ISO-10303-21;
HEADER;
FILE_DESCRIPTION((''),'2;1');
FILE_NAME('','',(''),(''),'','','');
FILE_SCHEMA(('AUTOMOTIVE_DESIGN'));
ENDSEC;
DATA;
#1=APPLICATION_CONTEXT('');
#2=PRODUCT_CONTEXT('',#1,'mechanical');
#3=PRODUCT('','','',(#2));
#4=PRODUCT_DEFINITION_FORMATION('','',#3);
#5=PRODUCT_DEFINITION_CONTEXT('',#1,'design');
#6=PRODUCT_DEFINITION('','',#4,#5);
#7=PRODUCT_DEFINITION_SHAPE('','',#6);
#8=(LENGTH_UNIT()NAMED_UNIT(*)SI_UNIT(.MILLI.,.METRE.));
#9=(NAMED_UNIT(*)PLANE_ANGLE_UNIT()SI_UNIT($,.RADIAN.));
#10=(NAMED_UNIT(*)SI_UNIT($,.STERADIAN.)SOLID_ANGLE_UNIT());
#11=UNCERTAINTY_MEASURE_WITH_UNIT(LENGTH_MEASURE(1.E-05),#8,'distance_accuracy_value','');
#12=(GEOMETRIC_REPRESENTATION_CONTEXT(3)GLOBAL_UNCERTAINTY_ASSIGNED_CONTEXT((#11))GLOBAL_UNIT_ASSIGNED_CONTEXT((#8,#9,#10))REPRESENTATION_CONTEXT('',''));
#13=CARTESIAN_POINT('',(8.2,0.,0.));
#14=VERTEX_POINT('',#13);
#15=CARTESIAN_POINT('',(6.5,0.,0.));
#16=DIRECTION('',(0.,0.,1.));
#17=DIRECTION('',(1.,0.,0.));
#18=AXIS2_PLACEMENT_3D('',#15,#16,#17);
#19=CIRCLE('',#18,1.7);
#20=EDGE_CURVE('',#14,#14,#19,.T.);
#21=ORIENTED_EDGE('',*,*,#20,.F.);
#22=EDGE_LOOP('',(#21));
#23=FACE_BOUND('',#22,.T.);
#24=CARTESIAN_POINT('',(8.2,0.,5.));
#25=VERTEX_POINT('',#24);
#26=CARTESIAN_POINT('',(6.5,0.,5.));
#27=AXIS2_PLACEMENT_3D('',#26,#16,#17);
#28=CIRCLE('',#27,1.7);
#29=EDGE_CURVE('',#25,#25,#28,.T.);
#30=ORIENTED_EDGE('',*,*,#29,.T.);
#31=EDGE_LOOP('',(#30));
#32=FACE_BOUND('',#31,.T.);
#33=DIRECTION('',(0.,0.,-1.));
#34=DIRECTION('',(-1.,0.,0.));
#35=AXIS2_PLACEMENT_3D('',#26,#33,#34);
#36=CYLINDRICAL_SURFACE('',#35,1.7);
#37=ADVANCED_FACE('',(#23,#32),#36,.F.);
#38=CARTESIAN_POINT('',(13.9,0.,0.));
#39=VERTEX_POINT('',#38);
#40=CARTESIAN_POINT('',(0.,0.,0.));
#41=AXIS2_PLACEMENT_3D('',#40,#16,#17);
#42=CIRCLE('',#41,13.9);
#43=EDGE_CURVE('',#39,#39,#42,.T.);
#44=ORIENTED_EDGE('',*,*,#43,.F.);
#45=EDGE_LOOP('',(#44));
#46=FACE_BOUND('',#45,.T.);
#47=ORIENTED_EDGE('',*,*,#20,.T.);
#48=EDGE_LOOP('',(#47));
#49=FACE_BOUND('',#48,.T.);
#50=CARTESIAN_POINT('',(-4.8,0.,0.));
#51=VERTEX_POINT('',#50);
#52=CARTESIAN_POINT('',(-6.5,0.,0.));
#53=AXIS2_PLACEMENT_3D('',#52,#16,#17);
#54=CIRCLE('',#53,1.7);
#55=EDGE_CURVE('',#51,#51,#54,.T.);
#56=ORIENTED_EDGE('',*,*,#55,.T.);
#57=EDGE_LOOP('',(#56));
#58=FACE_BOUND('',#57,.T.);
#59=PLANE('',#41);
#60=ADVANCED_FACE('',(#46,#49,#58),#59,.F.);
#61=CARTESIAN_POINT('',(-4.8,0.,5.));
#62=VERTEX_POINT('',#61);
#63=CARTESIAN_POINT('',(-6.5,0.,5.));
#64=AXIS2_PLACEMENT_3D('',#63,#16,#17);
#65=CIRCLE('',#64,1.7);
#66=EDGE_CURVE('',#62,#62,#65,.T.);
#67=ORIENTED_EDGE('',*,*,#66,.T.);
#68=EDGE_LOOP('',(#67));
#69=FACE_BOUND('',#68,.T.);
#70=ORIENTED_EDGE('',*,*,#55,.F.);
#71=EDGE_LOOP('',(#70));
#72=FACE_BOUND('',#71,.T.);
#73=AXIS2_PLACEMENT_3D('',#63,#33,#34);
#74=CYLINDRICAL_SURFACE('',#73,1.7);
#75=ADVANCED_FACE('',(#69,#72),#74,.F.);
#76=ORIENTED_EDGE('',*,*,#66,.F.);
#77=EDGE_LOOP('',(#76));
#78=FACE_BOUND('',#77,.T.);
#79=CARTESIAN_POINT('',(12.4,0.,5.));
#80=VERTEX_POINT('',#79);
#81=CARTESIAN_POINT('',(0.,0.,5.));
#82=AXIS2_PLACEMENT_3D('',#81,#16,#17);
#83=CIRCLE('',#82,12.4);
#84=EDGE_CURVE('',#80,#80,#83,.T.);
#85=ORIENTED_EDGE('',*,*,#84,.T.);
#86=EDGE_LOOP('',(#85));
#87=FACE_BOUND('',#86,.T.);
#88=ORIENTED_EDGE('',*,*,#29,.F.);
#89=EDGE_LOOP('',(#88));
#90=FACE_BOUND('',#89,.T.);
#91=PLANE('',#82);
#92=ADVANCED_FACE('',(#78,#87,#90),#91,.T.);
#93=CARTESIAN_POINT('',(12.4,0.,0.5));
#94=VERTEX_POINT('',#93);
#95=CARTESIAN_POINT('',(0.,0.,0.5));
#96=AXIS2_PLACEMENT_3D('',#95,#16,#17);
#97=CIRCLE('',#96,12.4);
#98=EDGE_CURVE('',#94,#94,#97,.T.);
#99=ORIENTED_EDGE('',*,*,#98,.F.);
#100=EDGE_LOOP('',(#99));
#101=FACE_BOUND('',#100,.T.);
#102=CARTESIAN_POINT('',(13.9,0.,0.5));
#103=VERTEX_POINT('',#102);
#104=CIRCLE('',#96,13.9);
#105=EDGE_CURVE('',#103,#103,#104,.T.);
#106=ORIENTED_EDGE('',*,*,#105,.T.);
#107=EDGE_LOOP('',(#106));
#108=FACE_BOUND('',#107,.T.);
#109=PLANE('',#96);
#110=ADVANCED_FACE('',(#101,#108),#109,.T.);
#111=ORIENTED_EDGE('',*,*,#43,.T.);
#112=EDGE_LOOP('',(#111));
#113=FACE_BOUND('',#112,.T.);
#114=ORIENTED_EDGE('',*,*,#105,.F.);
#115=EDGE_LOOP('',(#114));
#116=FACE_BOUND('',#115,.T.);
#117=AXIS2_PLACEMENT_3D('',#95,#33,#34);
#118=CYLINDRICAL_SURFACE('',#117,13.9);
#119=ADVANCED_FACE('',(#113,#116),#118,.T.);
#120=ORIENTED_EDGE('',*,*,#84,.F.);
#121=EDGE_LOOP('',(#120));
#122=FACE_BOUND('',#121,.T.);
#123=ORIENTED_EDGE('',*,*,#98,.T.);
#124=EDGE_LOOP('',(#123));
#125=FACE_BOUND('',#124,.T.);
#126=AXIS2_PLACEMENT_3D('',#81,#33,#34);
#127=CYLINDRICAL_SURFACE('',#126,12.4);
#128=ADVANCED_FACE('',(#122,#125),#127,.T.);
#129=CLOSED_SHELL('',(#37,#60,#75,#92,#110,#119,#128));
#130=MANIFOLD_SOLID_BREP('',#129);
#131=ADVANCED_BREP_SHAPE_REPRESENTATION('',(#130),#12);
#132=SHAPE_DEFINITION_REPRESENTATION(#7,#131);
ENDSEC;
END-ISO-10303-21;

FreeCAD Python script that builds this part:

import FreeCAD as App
import Part
import Sketcher

V = App.Vector
Q = App.Units.Quantity

doc = App.newDocument("Part")
body = doc.addObject("PartDesign::Body", "Body")

# Sketch on XY plane
sketch1 = doc.addObject("Sketcher::SketchObject", "Sketch")
body.addObject(sketch1)
sketch1.AttachmentSupport = (doc.XY_Plane, [""])
sketch1.MapMode = "FlatFace"
sketch1.addGeometry(Part.Circle(V(0, 0, 0), V(0, 0, 1), 12.4), False)
sketch1.addGeometry(Part.Circle(V(-6.5, 0, 0), V(0, 0, 1), 1.7), False)
sketch1.addGeometry(Part.Circle(V(6.5, 0, 0), V(0, 0, 1), 1.7), False)
sketch1.addConstraint(Sketcher.Constraint("Coincident", 0, 3, -1, 1))
sketch1.addConstraint(Sketcher.Constraint("Equal", 1, 2))
sketch1.addConstraint(Sketcher.Constraint("Symmetric", 1, 3, 2, 3, -1, 1))
sketch1.addConstraint(Sketcher.Constraint("PointOnObject", 1, 3, -1))
sketch1.addConstraint(Sketcher.Constraint("Diameter", 0, Q("24.8 mm")))
sketch1.addConstraint(Sketcher.Constraint("Diameter", 1, Q("3.4 mm")))
sketch1.addConstraint(Sketcher.Constraint("DistanceX", 1, 3, 2, 3, Q("13 mm")))
pad1 = doc.addObject("PartDesign::Pad", "Pad")
body.addObject(pad1)
pad1.Profile = sketch1
pad1.Length = 5

# Sketch on XY plane
sketch2 = doc.addObject("Sketcher::SketchObject", "Sketch001")
body.addObject(sketch2)
sketch2.AttachmentSupport = (doc.XY_Plane, [""])
sketch2.MapMode = "FlatFace"
sketch2.addGeometry(Part.Circle(V(0, 0, 0), V(0, 0, 1), 14), False)
sketch2.addGeometry(Part.Circle(V(0, 0, 0), V(0, 0, 1), 12), False)
sketch2.addConstraint(Sketcher.Constraint("Coincident", 0, 3, -1, 1))
sketch2.addConstraint(Sketcher.Constraint("Coincident", 1, 3, -1, 1))
sketch2.addConstraint(Sketcher.Constraint("Diameter", 0, Q("27.8 mm")))
sketch2.addConstraint(Sketcher.Constraint("Diameter", 1, Q("24.8 mm")))
pad2 = doc.addObject("PartDesign::Pad", "Pad001")
body.addObject(pad2)
pad2.Profile = sketch2
pad2.Length = 0.5

doc.recompute()
